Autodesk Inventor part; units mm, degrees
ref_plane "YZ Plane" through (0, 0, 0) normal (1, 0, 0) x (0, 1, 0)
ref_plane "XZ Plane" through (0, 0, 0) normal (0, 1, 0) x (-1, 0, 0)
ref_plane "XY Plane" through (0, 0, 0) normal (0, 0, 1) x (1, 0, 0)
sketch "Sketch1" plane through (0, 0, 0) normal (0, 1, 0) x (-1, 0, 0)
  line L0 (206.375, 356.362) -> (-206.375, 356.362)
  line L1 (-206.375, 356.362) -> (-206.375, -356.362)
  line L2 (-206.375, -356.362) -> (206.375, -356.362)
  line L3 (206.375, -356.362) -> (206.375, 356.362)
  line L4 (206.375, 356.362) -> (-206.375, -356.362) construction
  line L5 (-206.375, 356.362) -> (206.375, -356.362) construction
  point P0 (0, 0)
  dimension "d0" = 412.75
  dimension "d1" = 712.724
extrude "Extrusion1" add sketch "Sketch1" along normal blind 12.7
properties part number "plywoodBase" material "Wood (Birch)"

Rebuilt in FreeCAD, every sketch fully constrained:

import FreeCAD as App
import Part
import Sketcher

V = App.Vector
Q = App.Units.Quantity


def add_polygon(sketch, points):
    """Adds a closed chain of lines whose ends are joined by coincident constraints."""
    first, n = sketch.GeometryCount, len(points)
    for a, b in zip(points, points[1:] + points[:1]):
        sketch.addGeometry(Part.LineSegment(App.Vector(*a, 0), App.Vector(*b, 0)), False)
    for i in range(n):
        sketch.addConstraint(Sketcher.Constraint("Coincident", first + i, 2, first + (i + 1) % n, 1))

doc = App.newDocument("Part")
body = doc.addObject("PartDesign::Body", "Body")

sketch1 = body.newObject("Sketcher::SketchObject", "Sketch")
sketch1.AttachmentSupport = (doc.getObject("XZ_Plane"), [""])
sketch1.MapMode = "FlatFace"
add_polygon(sketch1, [(-206.375, -356.362), (-206.375, 356.362), (206.375, 356.362), (206.375, -356.362)])
sketch1.addConstraint([
    Sketcher.Constraint("Vertical", 0),
    Sketcher.Constraint("Horizontal", 1),
    Sketcher.Constraint("Vertical", 2),
    Sketcher.Constraint("Horizontal", 3),
    Sketcher.Constraint("Symmetric", 0, 2, 2, 2, -1, 1),
    Sketcher.Constraint("DistanceX", 1, 1, 1, 2, Q("16.25 in")),
    Sketcher.Constraint("DistanceY", 0, 1, 0, 2, Q("28.06 in")),
])
pad1 = body.newObject("PartDesign::Pad", "Pad")
pad1.Profile = sketch1
pad1.Length = Q("0.5 in")
pad1.Reversed = True

doc.recompute()
